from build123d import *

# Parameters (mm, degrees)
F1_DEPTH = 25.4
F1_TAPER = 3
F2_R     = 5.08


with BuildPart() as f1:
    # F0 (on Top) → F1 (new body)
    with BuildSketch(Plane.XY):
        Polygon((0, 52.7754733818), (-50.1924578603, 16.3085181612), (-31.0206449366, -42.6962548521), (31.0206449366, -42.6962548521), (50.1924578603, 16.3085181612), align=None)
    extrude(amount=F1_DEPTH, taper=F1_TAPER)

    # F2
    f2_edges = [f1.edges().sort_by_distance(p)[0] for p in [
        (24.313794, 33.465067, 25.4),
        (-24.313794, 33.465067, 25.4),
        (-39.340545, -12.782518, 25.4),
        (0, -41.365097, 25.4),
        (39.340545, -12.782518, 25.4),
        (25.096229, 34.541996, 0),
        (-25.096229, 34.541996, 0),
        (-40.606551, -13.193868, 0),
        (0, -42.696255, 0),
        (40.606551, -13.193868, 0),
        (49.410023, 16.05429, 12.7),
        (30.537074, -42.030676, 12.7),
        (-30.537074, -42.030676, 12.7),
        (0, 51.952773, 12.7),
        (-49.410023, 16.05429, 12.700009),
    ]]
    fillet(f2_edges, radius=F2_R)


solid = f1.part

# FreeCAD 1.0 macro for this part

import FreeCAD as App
import Part
import Sketcher
from FreeCAD import Vector
Q = App.Units.Quantity


def add_polygon(sketch, points):
    """Adds a closed chain of lines whose ends are joined by coincident constraints."""
    first, n = sketch.GeometryCount, len(points)
    for a, b in zip(points, points[1:] + points[:1]):
        sketch.addGeometry(Part.LineSegment(App.Vector(*a, 0), App.Vector(*b, 0)), False)
    for i in range(n):
        sketch.addConstraint(Sketcher.Constraint("Coincident", first + i, 2, first + (i + 1) % n, 1))

doc = App.newDocument("Part")
params = doc.addObject("Spreadsheet::Sheet", "Params")
for row, (alias, value) in enumerate([
    ("pad1_length", "1 in"),
    ("pad1_taper", "-3 deg"),
    ("fillet_radius", "0.2 in"),
], start=1):
    params.set(f"A{row}", alias)
    params.set(f"B{row}", "=" + value)
    params.setAlias(f"B{row}", alias)

body = doc.addObject("PartDesign::Body", "Body")

sketch1 = body.newObject("Sketcher::SketchObject", "Sketch")
sketch1.AttachmentSupport = (doc.getObject("XY_Plane"), [""])
sketch1.MapMode = "FlatFace"
add_polygon(sketch1, [(0, 52.775473), (-50.192458, 16.308518), (-31.020645, -42.696255), (31.020645, -42.696255), (50.192458, 16.308518)])
sketch1.addConstraint([
    Sketcher.Constraint("Horizontal", 2),
    Sketcher.Constraint("Symmetric", 0, 2, 3, 2, -2),
    Sketcher.Constraint("PointOnObject", 4, 2, -2),
    Sketcher.Constraint("Equal", 0, 1),
    Sketcher.Constraint("Equal", 1, 3),
    Sketcher.Constraint("Angle", 0, Q("-144 deg")),
    Sketcher.Constraint("Angle", 1, Q("-72 deg")),
    Sketcher.Constraint("DistanceX", 2, 1, 2, 2, 62.04129),
    Sketcher.Constraint("DistanceY", -1, 1, 0, 2, 16.308518),
])
pad1 = body.newObject("PartDesign::Pad", "Pad")
pad1.Profile = sketch1
pad1.setExpression("Length", "Params.pad1_length")
pad1.setExpression("TaperAngle", "Params.pad1_taper")
doc.recompute()

fillet = body.newObject("PartDesign::Fillet", "Fillet")
fillet.Base = (pad1, ["Edge1"])
fillet.UseAllEdges = True
fillet.setExpression("Radius", "Params.fillet_radius")

doc.recompute()
